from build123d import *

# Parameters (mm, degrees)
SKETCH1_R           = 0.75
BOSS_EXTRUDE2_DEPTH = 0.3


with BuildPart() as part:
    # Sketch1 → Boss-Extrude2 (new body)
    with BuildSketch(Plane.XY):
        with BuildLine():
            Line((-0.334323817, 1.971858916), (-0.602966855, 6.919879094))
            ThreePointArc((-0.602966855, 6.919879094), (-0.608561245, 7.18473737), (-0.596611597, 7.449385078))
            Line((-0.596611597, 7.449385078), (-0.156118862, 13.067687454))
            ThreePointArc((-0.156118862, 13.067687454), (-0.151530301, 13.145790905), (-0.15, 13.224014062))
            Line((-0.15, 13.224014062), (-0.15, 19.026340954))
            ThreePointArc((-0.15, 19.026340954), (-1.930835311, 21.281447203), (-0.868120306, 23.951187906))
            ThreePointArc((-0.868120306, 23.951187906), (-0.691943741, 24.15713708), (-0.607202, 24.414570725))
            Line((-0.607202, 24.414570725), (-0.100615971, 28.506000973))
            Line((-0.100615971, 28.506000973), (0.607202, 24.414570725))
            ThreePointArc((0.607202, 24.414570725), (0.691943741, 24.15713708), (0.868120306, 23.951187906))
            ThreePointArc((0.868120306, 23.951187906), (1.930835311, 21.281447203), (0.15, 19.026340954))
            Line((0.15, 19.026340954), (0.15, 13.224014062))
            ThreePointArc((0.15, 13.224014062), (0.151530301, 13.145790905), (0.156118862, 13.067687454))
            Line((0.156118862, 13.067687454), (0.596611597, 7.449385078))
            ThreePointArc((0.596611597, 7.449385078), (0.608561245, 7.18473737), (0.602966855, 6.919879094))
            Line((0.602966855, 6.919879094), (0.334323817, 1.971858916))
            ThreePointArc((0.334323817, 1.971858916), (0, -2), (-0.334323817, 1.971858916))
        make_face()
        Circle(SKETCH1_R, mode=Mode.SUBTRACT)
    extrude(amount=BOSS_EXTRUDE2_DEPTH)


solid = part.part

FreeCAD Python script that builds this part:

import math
import FreeCAD as App
import Part
import Sketcher

V = App.Vector

doc = App.newDocument("Part")
body = doc.addObject("PartDesign::Body", "Body")

sketch1 = doc.addObject("Sketcher::SketchObject", "Sketch")
body.addObject(sketch1)
sketch1.AttachmentSupport = (doc.XY_Plane, [""])
sketch1.MapMode = "FlatFace"
sketch1.addGeometry([
    Part.LineSegment(V(-0.602967, 6.919879, 0), V(-0.334324, 1.971859, 0)),
    Part.ArcOfCircle(Part.Circle(V(0, 0, 0), V(0, 0, 1), 2), math.radians(99.622847), math.radians(440.377153)),
    Part.LineSegment(V(0.334324, 1.971859, 0), V(0.602967, 6.919879, 0)),
    Part.ArcOfCircle(Part.Circle(V(-3.391151, 7.136732, 0), V(0, 0, 1), 4), math.radians(-3.107711), math.radians(4.483)),
    Part.LineSegment(V(0.596612, 7.449385, 0), V(0.156119, 13.067687, 0)),
    Part.ArcOfCircle(Part.Circle(V(2.15, 13.224014, 0), V(0, 0, 1), 2), math.radians(-180), math.radians(-175.517)),
    Part.LineSegment(V(0.15, 13.224014, 0), V(0.15, 19.026341, 0)),
    Part.ArcOfCircle(Part.Circle(V(-0.912432, 21.69604, 0), V(0, 0, 1), 2.873336), math.radians(-68.29945), math.radians(51.707132)),
    Part.ArcOfCircle(Part.Circle(V(1.301897, 24.500585, 0), V(0, 0, 1), 0.7), math.radians(-172.941767), math.radians(-128.292868)),
    Part.LineSegment(V(0.607202, 24.414571, 0), V(-0.100616, 28.506001, 0)),
    Part.LineSegment(V(-0.100616, 28.506001, 0), V(-0.607202, 24.414571, 0)),
    Part.ArcOfCircle(Part.Circle(V(-1.301897, 24.500585, 0), V(0, 0, 1), 0.7), math.radians(-51.707132), math.radians(-7.058233)),
    Part.ArcOfCircle(Part.Circle(V(0.912432, 21.69604, 0), V(0, 0, 1), 2.873336), math.radians(128.292868), math.radians(248.29945)),
    Part.LineSegment(V(-0.15, 19.026341, 0), V(-0.15, 13.224014, 0)),
    Part.ArcOfCircle(Part.Circle(V(-2.15, 13.224014, 0), V(0, 0, 1), 2), math.radians(-4.483), math.radians(0)),
    Part.LineSegment(V(-0.156119, 13.067687, 0), V(-0.596612, 7.449385, 0)),
    Part.ArcOfCircle(Part.Circle(V(3.391151, 7.136732, 0), V(0, 0, 1), 4), math.radians(175.517), math.radians(183.107711)),
    Part.Circle(V(0, 0, 0), V(0, 0, 1), 0.75),
], False)
sketch1.addConstraint([
    Sketcher.Constraint("Coincident", 0, 2, 1, 1),
    Sketcher.Constraint("Coincident", 1, 2, 2, 1),
    Sketcher.Constraint("Tangent", 2, 2, 3, 1),
    Sketcher.Constraint("Tangent", 3, 2, 4, 1),
    Sketcher.Constraint("Tangent", 4, 2, 5, 2),
    Sketcher.Constraint("Tangent", 5, 1, 6, 1),
    Sketcher.Constraint("Coincident", 6, 2, 7, 1),
    Sketcher.Constraint("Tangent", 7, 2, 8, 2),
    Sketcher.Constraint("Coincident", 8, 1, 9, 1),
    Sketcher.Constraint("Coincident", 9, 2, 10, 1),
    Sketcher.Constraint("Tangent", 10, 2, 11, 2),
    Sketcher.Constraint("Tangent", 11, 1, 12, 1),
    Sketcher.Constraint("Coincident", 12, 2, 13, 1),
    Sketcher.Constraint("Tangent", 13, 2, 14, 2),
    Sketcher.Constraint("Tangent", 14, 1, 15, 1),
    Sketcher.Constraint("Tangent", 15, 2, 16, 1),
    Sketcher.Constraint("Tangent", 16, 2, 0, 1),
    Sketcher.Constraint("Vertical", 6),
    Sketcher.Constraint("Vertical", 13),
    Sketcher.Constraint("Coincident", 1, 3, -1, 1),
    Sketcher.Constraint("Coincident", 17, 3, -1, 1),
    Sketcher.Constraint("Equal", 1, 5),
    Sketcher.Constraint("Equal", 8, 11),
    Sketcher.Constraint("Equal", 7, 12),
    Sketcher.Constraint("Equal", 5, 14),
    Sketcher.Constraint("Equal", 3, 16),
    Sketcher.Constraint("Symmetric", 8, 3, 11, 3, -2),
    Sketcher.Constraint("Symmetric", 5, 3, 14, 3, -2),
    Sketcher.Constraint("Symmetric", 3, 3, 16, 3, -2),
    Sketcher.Constraint("Horizontal", 7, 3, 12, 3),
    Sketcher.Constraint("Horizontal", 0, 2, 1, 2),
    Sketcher.Constraint("Horizontal", 8, 1, 10, 2),
    Sketcher.Constraint("Radius", 1, 2.0),
    Sketcher.Constraint("Radius", 3, 4.0),
    Sketcher.Constraint("Diameter", 17, 1.5),
    Sketcher.Constraint("Radius", 8, 0.7),
    Sketcher.Constraint("DistanceX", 14, 3, 5, 3, 4.3),
    Sketcher.Constraint("DistanceY", -1, 1, 9, 2, 28.506001),
    Sketcher.Constraint("Radius", 7, 2.873336),
    Sketcher.Constraint("DistanceX", -1, 1, 8, 1, 0.607202),
    Sketcher.Constraint("DistanceX", 3, 3, 16, 3, 6.782301),
    Sketcher.Constraint("DistanceY", 6, 2, 12, 3, 2.669699),
    Sketcher.Constraint("DistanceX", 11, 3, 8, 1, 1.909099),
    Sketcher.Constraint("DistanceY", 6, 1, 6, 2, 5.802327),
    Sketcher.Constraint("DistanceY", -1, 1, 3, 3, 7.136732),
    Sketcher.Constraint("DistanceY", -1, 1, 7, 3, 21.69604),
    Sketcher.Constraint("DistanceY", -1, 1, 0, 2, 1.971859),
])
pad1 = doc.addObject("PartDesign::Pad", "Pad")
body.addObject(pad1)
pad1.Profile = sketch1
pad1.Length = 0.3

doc.recompute()
